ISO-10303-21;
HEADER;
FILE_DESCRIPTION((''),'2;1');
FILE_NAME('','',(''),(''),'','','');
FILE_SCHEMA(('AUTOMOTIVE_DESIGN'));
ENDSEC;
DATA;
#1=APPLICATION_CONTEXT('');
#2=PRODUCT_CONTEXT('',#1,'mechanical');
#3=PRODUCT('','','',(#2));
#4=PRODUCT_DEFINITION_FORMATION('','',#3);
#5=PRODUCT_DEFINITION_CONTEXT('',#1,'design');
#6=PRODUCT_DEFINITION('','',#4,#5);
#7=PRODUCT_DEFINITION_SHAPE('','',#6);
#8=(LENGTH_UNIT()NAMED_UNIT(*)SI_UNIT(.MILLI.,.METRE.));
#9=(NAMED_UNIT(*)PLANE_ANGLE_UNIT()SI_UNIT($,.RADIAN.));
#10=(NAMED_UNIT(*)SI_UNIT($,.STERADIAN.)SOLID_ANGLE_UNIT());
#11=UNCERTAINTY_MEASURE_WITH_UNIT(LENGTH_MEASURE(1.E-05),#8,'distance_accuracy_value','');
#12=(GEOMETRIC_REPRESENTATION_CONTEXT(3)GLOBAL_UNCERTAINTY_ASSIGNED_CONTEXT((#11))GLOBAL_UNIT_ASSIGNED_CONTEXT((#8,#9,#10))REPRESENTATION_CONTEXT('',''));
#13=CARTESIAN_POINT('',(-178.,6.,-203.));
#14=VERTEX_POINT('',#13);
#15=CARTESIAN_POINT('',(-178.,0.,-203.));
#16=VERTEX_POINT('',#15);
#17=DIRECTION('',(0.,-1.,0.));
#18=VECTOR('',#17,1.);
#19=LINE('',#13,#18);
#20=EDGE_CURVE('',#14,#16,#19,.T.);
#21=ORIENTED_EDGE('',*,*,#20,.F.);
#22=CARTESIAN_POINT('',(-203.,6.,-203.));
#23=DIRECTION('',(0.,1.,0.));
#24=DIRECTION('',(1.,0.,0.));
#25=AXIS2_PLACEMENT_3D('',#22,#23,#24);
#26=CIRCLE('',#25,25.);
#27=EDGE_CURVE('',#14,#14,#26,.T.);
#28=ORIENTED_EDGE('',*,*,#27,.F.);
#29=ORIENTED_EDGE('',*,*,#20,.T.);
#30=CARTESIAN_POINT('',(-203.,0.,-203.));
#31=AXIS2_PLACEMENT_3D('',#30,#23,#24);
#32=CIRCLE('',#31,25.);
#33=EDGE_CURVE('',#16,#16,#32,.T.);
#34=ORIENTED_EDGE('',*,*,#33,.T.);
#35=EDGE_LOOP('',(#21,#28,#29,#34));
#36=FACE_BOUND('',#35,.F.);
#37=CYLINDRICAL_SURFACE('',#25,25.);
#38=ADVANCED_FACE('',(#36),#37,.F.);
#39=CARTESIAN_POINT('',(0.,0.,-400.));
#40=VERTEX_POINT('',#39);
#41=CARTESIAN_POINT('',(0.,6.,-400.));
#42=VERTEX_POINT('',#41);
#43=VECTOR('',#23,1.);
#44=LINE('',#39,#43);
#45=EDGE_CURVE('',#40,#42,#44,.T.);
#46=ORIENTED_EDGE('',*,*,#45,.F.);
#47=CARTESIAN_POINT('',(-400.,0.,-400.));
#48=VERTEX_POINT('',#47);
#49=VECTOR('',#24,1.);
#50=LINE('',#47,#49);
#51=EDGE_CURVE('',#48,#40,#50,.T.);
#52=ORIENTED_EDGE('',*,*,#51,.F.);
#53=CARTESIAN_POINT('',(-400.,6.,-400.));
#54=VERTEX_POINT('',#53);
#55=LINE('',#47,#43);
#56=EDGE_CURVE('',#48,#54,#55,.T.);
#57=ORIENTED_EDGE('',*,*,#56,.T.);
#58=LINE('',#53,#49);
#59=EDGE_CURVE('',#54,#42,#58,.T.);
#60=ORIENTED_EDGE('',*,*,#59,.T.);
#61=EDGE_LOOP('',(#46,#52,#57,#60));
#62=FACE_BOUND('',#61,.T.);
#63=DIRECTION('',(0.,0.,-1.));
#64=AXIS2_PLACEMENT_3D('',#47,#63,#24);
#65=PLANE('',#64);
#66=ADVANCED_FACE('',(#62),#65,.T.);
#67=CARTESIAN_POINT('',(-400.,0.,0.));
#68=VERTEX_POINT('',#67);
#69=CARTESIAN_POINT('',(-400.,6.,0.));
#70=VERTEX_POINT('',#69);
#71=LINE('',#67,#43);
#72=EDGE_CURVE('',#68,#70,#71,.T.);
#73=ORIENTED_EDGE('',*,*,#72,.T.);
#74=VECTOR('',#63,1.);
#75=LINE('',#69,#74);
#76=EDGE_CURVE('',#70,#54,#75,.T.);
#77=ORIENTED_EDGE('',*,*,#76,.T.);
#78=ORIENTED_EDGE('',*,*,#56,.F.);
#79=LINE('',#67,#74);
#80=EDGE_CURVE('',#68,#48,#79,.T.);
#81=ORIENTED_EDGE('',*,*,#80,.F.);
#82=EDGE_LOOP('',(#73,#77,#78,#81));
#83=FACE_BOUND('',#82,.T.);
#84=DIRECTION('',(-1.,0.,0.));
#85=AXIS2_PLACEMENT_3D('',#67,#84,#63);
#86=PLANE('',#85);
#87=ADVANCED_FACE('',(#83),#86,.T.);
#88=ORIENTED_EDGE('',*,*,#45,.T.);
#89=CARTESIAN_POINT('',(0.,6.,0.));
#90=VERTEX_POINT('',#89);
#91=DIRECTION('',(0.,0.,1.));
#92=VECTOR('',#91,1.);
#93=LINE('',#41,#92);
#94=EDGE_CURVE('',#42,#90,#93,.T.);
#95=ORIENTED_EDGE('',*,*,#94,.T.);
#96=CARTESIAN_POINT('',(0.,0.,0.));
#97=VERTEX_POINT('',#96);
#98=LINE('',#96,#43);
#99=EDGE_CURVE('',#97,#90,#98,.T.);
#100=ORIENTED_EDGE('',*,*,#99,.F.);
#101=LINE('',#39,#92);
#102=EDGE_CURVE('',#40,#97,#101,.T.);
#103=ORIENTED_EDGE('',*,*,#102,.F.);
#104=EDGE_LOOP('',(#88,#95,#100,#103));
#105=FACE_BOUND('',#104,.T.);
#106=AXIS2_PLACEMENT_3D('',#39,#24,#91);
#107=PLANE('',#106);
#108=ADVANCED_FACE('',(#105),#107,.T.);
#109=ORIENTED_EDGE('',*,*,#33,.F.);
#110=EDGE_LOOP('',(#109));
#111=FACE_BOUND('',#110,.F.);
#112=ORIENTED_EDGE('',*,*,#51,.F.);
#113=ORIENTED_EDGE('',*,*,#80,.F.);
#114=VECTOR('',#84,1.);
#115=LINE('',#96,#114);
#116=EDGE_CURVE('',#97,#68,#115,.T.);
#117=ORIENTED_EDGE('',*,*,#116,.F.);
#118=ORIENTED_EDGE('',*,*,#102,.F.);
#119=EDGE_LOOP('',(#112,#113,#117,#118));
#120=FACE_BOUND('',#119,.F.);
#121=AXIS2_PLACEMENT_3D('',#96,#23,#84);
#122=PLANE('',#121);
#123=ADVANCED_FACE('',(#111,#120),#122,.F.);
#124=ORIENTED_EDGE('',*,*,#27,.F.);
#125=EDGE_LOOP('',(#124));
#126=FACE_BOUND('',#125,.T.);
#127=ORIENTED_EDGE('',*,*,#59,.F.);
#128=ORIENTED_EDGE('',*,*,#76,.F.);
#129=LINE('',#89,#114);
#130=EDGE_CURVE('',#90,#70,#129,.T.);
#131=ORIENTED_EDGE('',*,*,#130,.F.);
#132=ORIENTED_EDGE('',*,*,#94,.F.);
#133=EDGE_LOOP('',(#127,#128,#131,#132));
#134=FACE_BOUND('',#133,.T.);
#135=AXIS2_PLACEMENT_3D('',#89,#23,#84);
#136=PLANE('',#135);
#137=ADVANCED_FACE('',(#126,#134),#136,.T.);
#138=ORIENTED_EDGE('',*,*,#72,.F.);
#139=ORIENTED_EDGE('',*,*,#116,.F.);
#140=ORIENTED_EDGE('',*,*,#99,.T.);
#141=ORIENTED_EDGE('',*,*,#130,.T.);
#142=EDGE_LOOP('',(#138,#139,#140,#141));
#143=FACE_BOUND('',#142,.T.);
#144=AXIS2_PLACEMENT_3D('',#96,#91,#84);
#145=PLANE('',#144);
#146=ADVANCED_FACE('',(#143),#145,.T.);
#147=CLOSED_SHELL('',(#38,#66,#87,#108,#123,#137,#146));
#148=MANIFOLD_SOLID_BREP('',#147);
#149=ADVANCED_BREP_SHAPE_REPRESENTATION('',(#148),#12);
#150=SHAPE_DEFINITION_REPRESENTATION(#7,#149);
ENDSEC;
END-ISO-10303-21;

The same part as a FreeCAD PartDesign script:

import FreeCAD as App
import Part
import Sketcher

V = App.Vector
Q = App.Units.Quantity


def add_polygon(sketch, points):
    """Adds a closed chain of lines whose ends are joined by coincident constraints."""
    first, n = sketch.GeometryCount, len(points)
    for a, b in zip(points, points[1:] + points[:1]):
        sketch.addGeometry(Part.LineSegment(App.Vector(*a, 0), App.Vector(*b, 0)), False)
    for i in range(n):
        sketch.addConstraint(Sketcher.Constraint("Coincident", first + i, 2, first + (i + 1) % n, 1))

doc = App.newDocument("Part")
body = doc.addObject("PartDesign::Body", "Body")

sketch1 = body.newObject("Sketcher::SketchObject", "Sketch")
sketch1.AttachmentSupport = (doc.getObject("XZ_Plane"), [""])
sketch1.MapMode = "FlatFace"
add_polygon(sketch1, [(-400, 0), (0, 0), (0, -400), (-400, -400)])
sketch1.addConstraint([
    Sketcher.Constraint("Horizontal", 0),
    Sketcher.Constraint("Vertical", 1),
    Sketcher.Constraint("Horizontal", 2),
    Sketcher.Constraint("Vertical", 3),
    Sketcher.Constraint("Coincident", 0, 2, -1, 1),
    Sketcher.Constraint("Equal", 2, 1),
    Sketcher.Constraint("DistanceX", 0, 1, 0, 2, Q("400 mm")),
])
pad1 = body.newObject("PartDesign::Pad", "Pad")
pad1.Profile = sketch1
pad1.Length = 6
pad1.Reversed = True

sketch2 = body.newObject("Sketcher::SketchObject", "Sketch001")
sketch2.AttachmentSupport = (doc.getObject("XZ_Plane"), [""])
sketch2.MapMode = "FlatFace"
sketch2.AttachmentOffset = App.Placement(V(0, 0, -6), App.Rotation())
sketch2.addGeometry(Part.Circle(V(-203, -203, 0), V(0, 0, 1), 25), False)
sketch2.addConstraint([
    Sketcher.Constraint("Diameter", 0, Q("50 mm")),
    Sketcher.Constraint("DistanceX", 0, 3, -1, 1, Q("203 mm")),
    Sketcher.Constraint("DistanceY", 0, 3, -1, 1, Q("203 mm")),
])
pocket1 = body.newObject("PartDesign::Pocket", "Pocket")
pocket1.Profile = sketch2
pocket1.Length = 6
pocket1.Reversed = True

doc.recompute()
